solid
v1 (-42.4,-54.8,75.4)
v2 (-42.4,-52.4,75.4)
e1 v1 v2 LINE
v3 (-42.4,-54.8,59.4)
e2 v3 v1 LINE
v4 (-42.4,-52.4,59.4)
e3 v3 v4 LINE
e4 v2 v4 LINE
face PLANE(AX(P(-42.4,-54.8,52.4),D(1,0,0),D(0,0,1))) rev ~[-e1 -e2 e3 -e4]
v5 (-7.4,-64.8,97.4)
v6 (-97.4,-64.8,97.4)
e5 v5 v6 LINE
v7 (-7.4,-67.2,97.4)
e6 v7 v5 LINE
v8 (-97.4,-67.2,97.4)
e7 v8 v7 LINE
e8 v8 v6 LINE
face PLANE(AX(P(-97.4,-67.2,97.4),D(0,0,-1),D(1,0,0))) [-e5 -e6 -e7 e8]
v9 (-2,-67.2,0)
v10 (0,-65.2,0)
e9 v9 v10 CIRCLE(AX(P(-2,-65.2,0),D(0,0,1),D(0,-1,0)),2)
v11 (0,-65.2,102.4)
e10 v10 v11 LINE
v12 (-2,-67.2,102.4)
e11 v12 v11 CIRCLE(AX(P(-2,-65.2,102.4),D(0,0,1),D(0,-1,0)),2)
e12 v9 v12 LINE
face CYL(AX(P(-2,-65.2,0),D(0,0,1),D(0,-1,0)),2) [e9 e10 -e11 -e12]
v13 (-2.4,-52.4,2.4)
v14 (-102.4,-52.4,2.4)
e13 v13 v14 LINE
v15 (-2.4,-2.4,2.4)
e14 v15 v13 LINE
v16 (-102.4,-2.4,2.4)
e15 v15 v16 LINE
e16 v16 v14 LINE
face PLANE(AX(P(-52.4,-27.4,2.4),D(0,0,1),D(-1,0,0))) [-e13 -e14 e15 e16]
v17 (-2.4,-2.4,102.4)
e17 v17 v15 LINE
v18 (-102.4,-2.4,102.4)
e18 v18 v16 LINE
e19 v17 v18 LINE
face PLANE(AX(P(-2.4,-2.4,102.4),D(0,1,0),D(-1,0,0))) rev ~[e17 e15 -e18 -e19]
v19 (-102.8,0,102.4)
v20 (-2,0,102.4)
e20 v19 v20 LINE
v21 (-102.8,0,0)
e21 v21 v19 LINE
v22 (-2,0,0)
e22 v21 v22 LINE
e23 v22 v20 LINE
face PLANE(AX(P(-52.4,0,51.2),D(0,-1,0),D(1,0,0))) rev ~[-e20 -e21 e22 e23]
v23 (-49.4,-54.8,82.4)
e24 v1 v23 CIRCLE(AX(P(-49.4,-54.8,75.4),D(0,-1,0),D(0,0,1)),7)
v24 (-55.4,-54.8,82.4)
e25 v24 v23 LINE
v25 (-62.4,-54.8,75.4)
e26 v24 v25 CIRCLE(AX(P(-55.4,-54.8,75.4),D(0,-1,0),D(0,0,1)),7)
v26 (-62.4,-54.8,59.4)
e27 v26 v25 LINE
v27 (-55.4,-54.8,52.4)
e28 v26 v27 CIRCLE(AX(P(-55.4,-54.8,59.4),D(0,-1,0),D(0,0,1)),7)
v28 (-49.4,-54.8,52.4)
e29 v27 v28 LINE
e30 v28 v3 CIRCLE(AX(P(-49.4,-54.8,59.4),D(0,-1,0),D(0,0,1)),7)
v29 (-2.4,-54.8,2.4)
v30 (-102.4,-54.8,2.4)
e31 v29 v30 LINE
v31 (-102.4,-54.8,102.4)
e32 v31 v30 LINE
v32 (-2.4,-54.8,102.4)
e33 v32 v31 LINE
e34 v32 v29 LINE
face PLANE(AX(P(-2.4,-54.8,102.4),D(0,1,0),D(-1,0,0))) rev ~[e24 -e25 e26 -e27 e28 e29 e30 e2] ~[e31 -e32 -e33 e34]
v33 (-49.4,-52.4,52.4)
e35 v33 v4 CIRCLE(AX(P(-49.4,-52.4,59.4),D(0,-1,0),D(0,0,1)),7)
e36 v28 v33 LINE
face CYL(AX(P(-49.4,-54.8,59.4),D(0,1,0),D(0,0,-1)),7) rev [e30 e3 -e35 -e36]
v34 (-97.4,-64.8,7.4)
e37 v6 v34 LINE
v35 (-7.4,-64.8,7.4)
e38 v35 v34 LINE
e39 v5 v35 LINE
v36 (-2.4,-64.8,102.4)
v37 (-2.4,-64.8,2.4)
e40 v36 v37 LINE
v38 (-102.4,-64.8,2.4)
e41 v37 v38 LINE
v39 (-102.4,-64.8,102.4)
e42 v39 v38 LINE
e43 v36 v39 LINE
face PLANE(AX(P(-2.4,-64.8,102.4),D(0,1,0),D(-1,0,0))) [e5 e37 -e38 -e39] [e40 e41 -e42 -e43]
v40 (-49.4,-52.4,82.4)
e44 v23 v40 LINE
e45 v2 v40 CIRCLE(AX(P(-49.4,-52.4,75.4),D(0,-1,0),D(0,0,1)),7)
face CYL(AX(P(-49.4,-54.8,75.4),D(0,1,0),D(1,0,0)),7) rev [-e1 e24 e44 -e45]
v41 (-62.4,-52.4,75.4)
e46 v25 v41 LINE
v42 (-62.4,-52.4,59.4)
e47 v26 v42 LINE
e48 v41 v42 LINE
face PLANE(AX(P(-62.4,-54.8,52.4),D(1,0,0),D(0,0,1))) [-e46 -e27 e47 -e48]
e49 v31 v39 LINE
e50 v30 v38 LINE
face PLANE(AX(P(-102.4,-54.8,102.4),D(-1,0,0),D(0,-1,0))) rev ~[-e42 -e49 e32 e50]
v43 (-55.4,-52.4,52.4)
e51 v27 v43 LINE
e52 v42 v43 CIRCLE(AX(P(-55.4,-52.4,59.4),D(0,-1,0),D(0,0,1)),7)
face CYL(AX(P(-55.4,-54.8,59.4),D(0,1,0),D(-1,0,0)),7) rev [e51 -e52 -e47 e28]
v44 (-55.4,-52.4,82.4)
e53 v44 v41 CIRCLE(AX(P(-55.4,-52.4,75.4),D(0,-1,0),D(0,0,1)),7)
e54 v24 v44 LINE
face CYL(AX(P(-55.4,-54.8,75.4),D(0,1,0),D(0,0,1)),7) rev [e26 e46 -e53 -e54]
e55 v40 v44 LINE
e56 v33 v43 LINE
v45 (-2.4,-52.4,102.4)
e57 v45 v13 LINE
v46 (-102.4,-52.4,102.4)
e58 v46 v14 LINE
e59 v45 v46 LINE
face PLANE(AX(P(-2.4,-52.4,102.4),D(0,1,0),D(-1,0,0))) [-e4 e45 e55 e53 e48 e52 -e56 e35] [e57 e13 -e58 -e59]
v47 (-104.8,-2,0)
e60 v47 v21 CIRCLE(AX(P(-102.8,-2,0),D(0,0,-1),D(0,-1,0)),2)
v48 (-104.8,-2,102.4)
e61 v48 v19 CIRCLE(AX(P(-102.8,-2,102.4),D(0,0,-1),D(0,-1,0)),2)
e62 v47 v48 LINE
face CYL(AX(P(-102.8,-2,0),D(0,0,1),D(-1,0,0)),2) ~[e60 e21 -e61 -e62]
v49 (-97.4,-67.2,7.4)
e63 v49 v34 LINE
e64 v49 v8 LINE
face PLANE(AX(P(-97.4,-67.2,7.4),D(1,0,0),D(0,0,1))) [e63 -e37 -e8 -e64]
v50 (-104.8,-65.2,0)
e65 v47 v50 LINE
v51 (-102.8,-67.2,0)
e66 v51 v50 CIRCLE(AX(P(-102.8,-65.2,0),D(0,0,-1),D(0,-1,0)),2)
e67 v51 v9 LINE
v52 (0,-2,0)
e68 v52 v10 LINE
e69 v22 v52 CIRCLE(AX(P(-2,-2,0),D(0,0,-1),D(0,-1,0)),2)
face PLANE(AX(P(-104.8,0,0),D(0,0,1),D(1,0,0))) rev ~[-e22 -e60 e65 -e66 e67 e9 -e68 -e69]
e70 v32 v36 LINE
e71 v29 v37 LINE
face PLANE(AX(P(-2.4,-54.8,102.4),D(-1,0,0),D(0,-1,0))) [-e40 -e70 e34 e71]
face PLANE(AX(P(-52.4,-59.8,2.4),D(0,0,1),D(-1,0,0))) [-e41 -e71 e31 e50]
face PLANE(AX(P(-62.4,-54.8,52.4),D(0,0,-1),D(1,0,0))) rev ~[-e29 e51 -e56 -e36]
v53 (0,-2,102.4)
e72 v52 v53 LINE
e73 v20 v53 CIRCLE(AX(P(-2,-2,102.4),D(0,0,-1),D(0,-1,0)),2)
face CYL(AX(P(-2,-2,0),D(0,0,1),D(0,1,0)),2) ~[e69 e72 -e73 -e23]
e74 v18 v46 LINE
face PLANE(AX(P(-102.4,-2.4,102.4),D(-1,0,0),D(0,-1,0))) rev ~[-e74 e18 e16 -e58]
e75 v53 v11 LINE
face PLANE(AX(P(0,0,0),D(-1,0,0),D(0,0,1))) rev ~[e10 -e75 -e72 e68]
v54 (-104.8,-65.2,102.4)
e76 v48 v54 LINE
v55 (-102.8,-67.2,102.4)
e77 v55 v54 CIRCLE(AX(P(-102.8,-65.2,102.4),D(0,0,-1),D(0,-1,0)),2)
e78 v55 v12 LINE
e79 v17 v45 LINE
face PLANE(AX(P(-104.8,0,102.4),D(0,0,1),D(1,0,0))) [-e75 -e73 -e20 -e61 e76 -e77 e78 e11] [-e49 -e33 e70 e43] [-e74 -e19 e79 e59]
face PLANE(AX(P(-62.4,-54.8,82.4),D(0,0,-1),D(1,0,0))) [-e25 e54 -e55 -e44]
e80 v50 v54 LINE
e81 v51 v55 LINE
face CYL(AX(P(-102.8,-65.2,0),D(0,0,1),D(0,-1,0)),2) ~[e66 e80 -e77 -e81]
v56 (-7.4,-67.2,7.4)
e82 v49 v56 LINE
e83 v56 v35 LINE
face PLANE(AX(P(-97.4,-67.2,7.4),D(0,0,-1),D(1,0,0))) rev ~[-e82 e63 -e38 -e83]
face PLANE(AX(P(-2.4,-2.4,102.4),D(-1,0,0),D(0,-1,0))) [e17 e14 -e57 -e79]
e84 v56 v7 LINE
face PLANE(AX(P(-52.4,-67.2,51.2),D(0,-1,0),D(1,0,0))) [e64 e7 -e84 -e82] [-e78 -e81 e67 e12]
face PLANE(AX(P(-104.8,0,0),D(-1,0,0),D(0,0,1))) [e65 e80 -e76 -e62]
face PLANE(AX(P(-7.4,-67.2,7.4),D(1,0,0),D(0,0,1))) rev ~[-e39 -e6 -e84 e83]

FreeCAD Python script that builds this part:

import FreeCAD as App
import Part
import Sketcher


def edges_at(feature, points):
    """Names of the edges that pass closest to the given points."""
    edges = feature.Shape.Edges
    near = lambda p: min(range(len(edges)), key=lambda i: edges[i].distToShape(Part.Vertex(*p))[0])
    return sorted({f"Edge{near(p) + 1}" for p in points})


def add_polygon(sketch, points):
    """Adds a closed chain of lines whose ends are joined by coincident constraints."""
    first, n = sketch.GeometryCount, len(points)
    for a, b in zip(points, points[1:] + points[:1]):
        sketch.addGeometry(Part.LineSegment(App.Vector(*a, 0), App.Vector(*b, 0)), False)
    for i in range(n):
        sketch.addConstraint(Sketcher.Constraint("Coincident", first + i, 2, first + (i + 1) % n, 1))

doc = App.newDocument("Part")
body = doc.addObject("PartDesign::Body", "Body")

sketch1 = body.newObject("Sketcher::SketchObject", "Sketch")
sketch1.AttachmentSupport = (doc.getObject("XZ_Plane"), [""])
sketch1.MapMode = "FlatFace"
add_polygon(sketch1, [(-105, 102), (-105, 0), (0, 0), (0, 102)])
sketch1.addConstraint(Sketcher.Constraint("Vertical", 0))
sketch1.addConstraint(Sketcher.Constraint("Horizontal", 1))
sketch1.addConstraint(Sketcher.Constraint("Vertical", 2))
sketch1.addConstraint(Sketcher.Constraint("Horizontal", 3))
sketch1.addConstraint(Sketcher.Constraint("Coincident", 1, 2, -1, 1))
sketch1.addConstraint(Sketcher.Constraint("DistanceX", 1, 1, 1, 2, 104.8))
sketch1.addConstraint(Sketcher.Constraint("DistanceY", 0, 2, 0, 1, 102.4))
pad1 = body.newObject("PartDesign::Pad", "Pad")
pad1.Profile = sketch1
pad1.Length = 67.2

sketch2 = body.newObject("Sketcher::SketchObject", "Sketch001")
sketch2.AttachmentSupport = (doc.getObject("XY_Plane"), [""])
sketch2.MapMode = "FlatFace"
sketch2.AttachmentOffset = App.Placement(App.Vector(0, 0, 102.4), App.Rotation())
add_polygon(sketch2, [(-2, -52), (-2, -2), (-102, -2), (-102, -52)])
sketch2.addConstraint(Sketcher.Constraint("Vertical", 0))
sketch2.addConstraint(Sketcher.Constraint("Horizontal", 1))
sketch2.addConstraint(Sketcher.Constraint("Vertical", 2))
sketch2.addConstraint(Sketcher.Constraint("Horizontal", 3))
sketch2.addConstraint(Sketcher.Constraint("DistanceX", 1, 2, 1, 1, 100.0))
sketch2.addConstraint(Sketcher.Constraint("DistanceY", 0, 1, 0, 2, 50.0))
sketch2.addConstraint(Sketcher.Constraint("DistanceX", 0, 2, -1, 1, 2.4))
sketch2.addConstraint(Sketcher.Constraint("DistanceY", 0, 2, -1, 1, 2.4))
pocket1 = body.newObject("PartDesign::Pocket", "Pocket")
pocket1.Profile = sketch2
pocket1.Length = 100

sketch3 = body.newObject("Sketcher::SketchObject", "Sketch002")
sketch3.AttachmentSupport = (doc.getObject("XY_Plane"), [""])
sketch3.MapMode = "FlatFace"
sketch3.AttachmentOffset = App.Placement(App.Vector(0, 0, 102.4), App.Rotation())
add_polygon(sketch3, [(-2, -65), (-2, -55), (-102, -55), (-102, -65)])
sketch3.addConstraint(Sketcher.Constraint("Vertical", 0))
sketch3.addConstraint(Sketcher.Constraint("Horizontal", 1))
sketch3.addConstraint(Sketcher.Constraint("Vertical", 2))
sketch3.addConstraint(Sketcher.Constraint("Horizontal", 3))
sketch3.addConstraint(Sketcher.Constraint("DistanceX", 1, 2, 1, 1, 100.0))
sketch3.addConstraint(Sketcher.Constraint("DistanceY", 0, 1, 0, 2, 10.0))
sketch3.addConstraint(Sketcher.Constraint("DistanceX", 0, 2, -1, 1, 2.4))
sketch3.addConstraint(Sketcher.Constraint("DistanceY", 0, 2, -1, 1, 54.8))
pocket2 = body.newObject("PartDesign::Pocket", "Pocket001")
pocket2.Profile = sketch3
pocket2.Length = 100

sketch4 = body.newObject("Sketcher::SketchObject", "Sketch003")
sketch4.AttachmentSupport = (doc.getObject("XZ_Plane"), [""])
sketch4.MapMode = "FlatFace"
sketch4.AttachmentOffset = App.Placement(App.Vector(0, 0, 67.2), App.Rotation())
add_polygon(sketch4, [(-97, 97), (-97, 7), (-7, 7), (-7, 97)])
sketch4.addConstraint(Sketcher.Constraint("Vertical", 0))
sketch4.addConstraint(Sketcher.Constraint("Horizontal", 1))
sketch4.addConstraint(Sketcher.Constraint("Vertical", 2))
sketch4.addConstraint(Sketcher.Constraint("Horizontal", 3))
sketch4.addConstraint(Sketcher.Constraint("Equal", 3, 0))
sketch4.addConstraint(Sketcher.Constraint("DistanceX", 1, 1, 1, 2, 90.0))
sketch4.addConstraint(Sketcher.Constraint("DistanceX", 0, 2, -1, 1, 97.4))
sketch4.addConstraint(Sketcher.Constraint("DistanceY", -1, 1, 0, 2, 7.4))
pocket3 = body.newObject("PartDesign::Pocket", "Pocket002")
pocket3.Profile = sketch4
pocket3.Length = 3

sketch5 = body.newObject("Sketcher::SketchObject", "Sketch004")
sketch5.AttachmentSupport = (doc.getObject("XZ_Plane"), [""])
sketch5.MapMode = "FlatFace"
sketch5.AttachmentOffset = App.Placement(App.Vector(0, 0, 54.8), App.Rotation())
add_polygon(sketch5, [(-62, 82), (-62, 52), (-42, 52), (-42, 82)])
sketch5.addConstraint(Sketcher.Constraint("Vertical", 0))
sketch5.addConstraint(Sketcher.Constraint("Horizontal", 1))
sketch5.addConstraint(Sketcher.Constraint("Vertical", 2))
sketch5.addConstraint(Sketcher.Constraint("Horizontal", 3))
sketch5.addConstraint(Sketcher.Constraint("DistanceX", 1, 1, 1, 2, 20.0))
sketch5.addConstraint(Sketcher.Constraint("DistanceY", 0, 2, 0, 1, 30.0))
sketch5.addConstraint(Sketcher.Constraint("DistanceX", 0, 2, -1, 1, 62.4))
sketch5.addConstraint(Sketcher.Constraint("DistanceY", -1, 1, 0, 2, 52.4))
pocket4 = body.newObject("PartDesign::Pocket", "Pocket003")
pocket4.Profile = sketch5
pocket4.Length = 5
doc.recompute()

fillet = body.newObject("PartDesign::Fillet", "Fillet")
fillet.Base = (pocket4, edges_at(pocket4, [(0, -67.2, 51.2)]))
fillet.Radius = 2
doc.recompute()

fillet2 = body.newObject("PartDesign::Fillet", "Fillet001")
fillet2.Base = (fillet, edges_at(fillet, [(-104.8, -67.2, 51.2)]))
fillet2.Radius = 2
doc.recompute()

fillet3 = body.newObject("PartDesign::Fillet", "Fillet002")
fillet3.Base = (fillet2, edges_at(fillet2, [(-104.8, 0, 51.2)]))
fillet3.Radius = 2
doc.recompute()

fillet4 = body.newObject("PartDesign::Fillet", "Fillet003")
fillet4.Base = (fillet3, edges_at(fillet3, [(0, 0, 51.2)]))
fillet4.Radius = 2
doc.recompute()

fillet5 = body.newObject("PartDesign::Fillet", "Fillet004")
fillet5.Base = (fillet4, edges_at(fillet4, [(-62.4, -53.6, 52.4)]))
fillet5.Radius = 7
doc.recompute()

fillet6 = body.newObject("PartDesign::Fillet", "Fillet005")
fillet6.Base = (fillet5, edges_at(fillet5, [(-42.4, -53.6, 52.4)]))
fillet6.Radius = 7
doc.recompute()

fillet7 = body.newObject("PartDesign::Fillet", "Fillet006")
fillet7.Base = (fillet6, edges_at(fillet6, [(-42.4, -53.6, 82.4)]))
fillet7.Radius = 7
doc.recompute()

fillet8 = body.newObject("PartDesign::Fillet", "Fillet007")
fillet8.Base = (fillet7, edges_at(fillet7, [(-62.4, -53.6, 82.4)]))
fillet8.Radius = 7

doc.recompute()
